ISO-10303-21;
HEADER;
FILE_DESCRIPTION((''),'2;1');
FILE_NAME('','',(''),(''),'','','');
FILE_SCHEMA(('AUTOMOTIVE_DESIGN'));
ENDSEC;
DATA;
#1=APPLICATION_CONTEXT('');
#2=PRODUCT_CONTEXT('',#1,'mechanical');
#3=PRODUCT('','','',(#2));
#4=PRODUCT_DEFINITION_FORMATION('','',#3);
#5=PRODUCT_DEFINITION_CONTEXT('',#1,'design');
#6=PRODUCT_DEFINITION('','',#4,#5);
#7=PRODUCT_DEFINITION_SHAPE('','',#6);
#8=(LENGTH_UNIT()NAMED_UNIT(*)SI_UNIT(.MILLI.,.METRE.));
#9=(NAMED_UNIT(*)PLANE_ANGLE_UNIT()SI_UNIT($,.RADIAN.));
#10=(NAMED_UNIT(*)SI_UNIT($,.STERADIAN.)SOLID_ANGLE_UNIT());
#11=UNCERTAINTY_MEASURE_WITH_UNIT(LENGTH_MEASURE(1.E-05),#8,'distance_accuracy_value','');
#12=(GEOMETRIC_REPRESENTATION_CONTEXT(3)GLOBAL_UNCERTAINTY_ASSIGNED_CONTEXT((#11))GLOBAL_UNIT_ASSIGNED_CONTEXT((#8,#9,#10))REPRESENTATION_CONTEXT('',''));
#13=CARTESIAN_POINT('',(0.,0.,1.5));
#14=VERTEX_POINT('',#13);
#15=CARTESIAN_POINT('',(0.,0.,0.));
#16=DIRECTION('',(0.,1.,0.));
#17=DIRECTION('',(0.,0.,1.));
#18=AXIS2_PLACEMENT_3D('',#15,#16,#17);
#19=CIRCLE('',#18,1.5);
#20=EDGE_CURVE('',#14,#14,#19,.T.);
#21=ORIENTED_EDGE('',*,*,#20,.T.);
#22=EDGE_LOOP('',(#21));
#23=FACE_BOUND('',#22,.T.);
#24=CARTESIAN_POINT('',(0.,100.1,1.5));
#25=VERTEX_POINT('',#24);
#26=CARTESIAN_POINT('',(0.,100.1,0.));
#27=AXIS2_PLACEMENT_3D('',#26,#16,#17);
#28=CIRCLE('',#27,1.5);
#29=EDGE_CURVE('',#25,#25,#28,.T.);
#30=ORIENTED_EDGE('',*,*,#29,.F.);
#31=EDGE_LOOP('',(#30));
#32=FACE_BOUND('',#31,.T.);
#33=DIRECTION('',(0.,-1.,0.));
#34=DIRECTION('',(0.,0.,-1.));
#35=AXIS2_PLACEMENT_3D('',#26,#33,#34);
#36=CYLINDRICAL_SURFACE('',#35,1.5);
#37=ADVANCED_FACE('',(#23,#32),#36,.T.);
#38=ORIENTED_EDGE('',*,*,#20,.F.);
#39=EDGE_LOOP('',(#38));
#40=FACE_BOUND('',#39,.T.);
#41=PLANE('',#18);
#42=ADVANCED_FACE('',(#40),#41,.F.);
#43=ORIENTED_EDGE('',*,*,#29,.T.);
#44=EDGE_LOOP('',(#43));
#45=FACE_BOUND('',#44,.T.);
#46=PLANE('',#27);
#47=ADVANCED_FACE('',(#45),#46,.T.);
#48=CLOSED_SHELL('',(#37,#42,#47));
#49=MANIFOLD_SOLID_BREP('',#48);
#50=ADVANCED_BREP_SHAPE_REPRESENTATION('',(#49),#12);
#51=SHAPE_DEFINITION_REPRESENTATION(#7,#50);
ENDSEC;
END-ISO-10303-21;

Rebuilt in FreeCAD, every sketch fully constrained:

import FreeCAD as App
import Part
import Sketcher

doc = App.newDocument("Part")
body = doc.addObject("PartDesign::Body", "Body")

sketch1 = doc.addObject("Sketcher::SketchObject", "Sketch")
body.addObject(sketch1)
sketch1.AttachmentSupport = (doc.XZ_Plane, [""])
sketch1.MapMode = "FlatFace"
sketch1.addGeometry(Part.Circle(App.Vector(0, 0, 0), App.Vector(0, 0, 1), 1.5), False)
sketch1.addConstraint(Sketcher.Constraint("Coincident", 0, 3, -1, 1))
sketch1.addConstraint(Sketcher.Constraint("Diameter", 0, 3.0))
pad1 = doc.addObject("PartDesign::Pad", "Pad")
body.addObject(pad1)
pad1.Profile = sketch1
pad1.Length = 100.1
pad1.Reversed = True

doc.recompute()
